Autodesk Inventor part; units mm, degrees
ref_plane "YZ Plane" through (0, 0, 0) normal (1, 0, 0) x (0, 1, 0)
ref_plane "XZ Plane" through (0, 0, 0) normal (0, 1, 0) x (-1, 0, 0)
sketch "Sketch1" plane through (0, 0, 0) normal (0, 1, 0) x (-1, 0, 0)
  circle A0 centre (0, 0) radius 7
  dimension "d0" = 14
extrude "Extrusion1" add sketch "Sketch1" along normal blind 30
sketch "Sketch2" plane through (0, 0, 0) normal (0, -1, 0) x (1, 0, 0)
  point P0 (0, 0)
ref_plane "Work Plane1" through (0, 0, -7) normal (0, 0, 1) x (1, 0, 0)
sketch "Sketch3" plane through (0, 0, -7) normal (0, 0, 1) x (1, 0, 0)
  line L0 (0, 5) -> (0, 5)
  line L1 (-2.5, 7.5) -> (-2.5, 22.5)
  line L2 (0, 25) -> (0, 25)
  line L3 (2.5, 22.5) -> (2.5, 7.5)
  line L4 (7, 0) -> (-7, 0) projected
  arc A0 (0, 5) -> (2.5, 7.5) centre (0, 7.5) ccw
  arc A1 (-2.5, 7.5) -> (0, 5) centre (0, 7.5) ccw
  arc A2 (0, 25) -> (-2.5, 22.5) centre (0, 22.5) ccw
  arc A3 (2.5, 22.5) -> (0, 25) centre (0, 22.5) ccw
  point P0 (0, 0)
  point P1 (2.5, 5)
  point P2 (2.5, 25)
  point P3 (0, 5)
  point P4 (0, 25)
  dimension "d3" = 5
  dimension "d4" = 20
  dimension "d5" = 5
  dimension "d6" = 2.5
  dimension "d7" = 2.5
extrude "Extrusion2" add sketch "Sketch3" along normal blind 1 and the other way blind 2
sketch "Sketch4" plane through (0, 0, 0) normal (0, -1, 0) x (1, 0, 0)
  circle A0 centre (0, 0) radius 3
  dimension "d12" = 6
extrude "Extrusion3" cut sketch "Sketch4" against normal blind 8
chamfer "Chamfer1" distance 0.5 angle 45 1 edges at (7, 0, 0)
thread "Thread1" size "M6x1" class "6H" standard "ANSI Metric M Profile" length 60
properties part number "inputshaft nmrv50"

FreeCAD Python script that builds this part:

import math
import FreeCAD as App
import Part
import Sketcher
from FreeCAD import Vector
Q = App.Units.Quantity


def edges_at(feature, points):
    """Names of the edges that pass closest to the given points."""
    edges = feature.Shape.Edges
    near = lambda p: min(range(len(edges)), key=lambda i: edges[i].distToShape(Part.Vertex(*p))[0])
    return sorted({f"Edge{near(p) + 1}" for p in points})

doc = App.newDocument("Part")
body = doc.addObject("PartDesign::Body", "Body")

# Sketch on XZ plane
sketch1 = doc.addObject("Sketcher::SketchObject", "Sketch")
body.addObject(sketch1)
sketch1.AttachmentSupport = (doc.XZ_Plane, [""])
sketch1.MapMode = "FlatFace"
sketch1.addGeometry(Part.Circle(Vector(0, 0, 0), Vector(0, 0, 1), 7), False)
sketch1.addConstraint([
    Sketcher.Constraint("Coincident", 0, 3, -1, 1),
    Sketcher.Constraint("Diameter", 0, Q("14 mm")),
])
pad1 = doc.addObject("PartDesign::Pad", "Pad")
body.addObject(pad1)
pad1.Profile = sketch1
pad1.Length = 30
pad1.Reversed = True

# Sketch on XY plane
sketch2 = doc.addObject("Sketcher::SketchObject", "Sketch001")
body.addObject(sketch2)
sketch2.AttachmentSupport = (doc.XY_Plane, [""])
sketch2.MapMode = "FlatFace"
sketch2.AttachmentOffset = App.Placement(Vector(0, 0, -7), App.Rotation())
sketch2.addGeometry([
    Part.LineSegment(Vector(-2.5, 22.5, 0), Vector(-2.5, 7.5, 0)),
    Part.ArcOfCircle(Part.Circle(Vector(0, 7.5, 0), Vector(0, 0, 1), 2.5), math.radians(180), math.radians(360)),
    Part.LineSegment(Vector(2.5, 7.5, 0), Vector(2.5, 22.5, 0)),
    Part.ArcOfCircle(Part.Circle(Vector(0, 22.5, 0), Vector(0, 0, 1), 2.5), math.radians(0), math.radians(180)),
], False)
sketch2.addConstraint([
    Sketcher.Constraint("Tangent", 0, 2, 1, 1),
    Sketcher.Constraint("Tangent", 1, 2, 2, 1),
    Sketcher.Constraint("Tangent", 2, 2, 3, 1),
    Sketcher.Constraint("Tangent", 3, 2, 0, 1),
    Sketcher.Constraint("Vertical", 0),
    Sketcher.Constraint("Vertical", 2),
    Sketcher.Constraint("PointOnObject", 1, 3, -2),
    Sketcher.Constraint("Radius", 1, Q("2.5 mm")),
    Sketcher.Constraint("DistanceY", 0, 2, 0, 1, Q("15 mm")),
    Sketcher.Constraint("DistanceY", -1, 1, 1, 3, Q("7.5 mm")),
])
pad2 = doc.addObject("PartDesign::Pad", "Pad001")
body.addObject(pad2)
pad2.Profile = sketch2
pad2.Type = "TwoLengths"
pad2.Length = 1
pad2.Length2 = 2

# Sketch on XZ plane
sketch3 = doc.addObject("Sketcher::SketchObject", "Sketch002")
body.addObject(sketch3)
sketch3.AttachmentSupport = (doc.XZ_Plane, [""])
sketch3.MapMode = "FlatFace"
sketch3.addGeometry(Part.Circle(Vector(0, 0, 0), Vector(0, 0, 1), 3), False)
sketch3.addConstraint([
    Sketcher.Constraint("Coincident", 0, 3, -1, 1),
    Sketcher.Constraint("Diameter", 0, Q("6 mm")),
])
pocket1 = doc.addObject("PartDesign::Pocket", "Pocket")
body.addObject(pocket1)
pocket1.Profile = sketch3
pocket1.Length = 8
doc.recompute()

chamfer = doc.addObject("PartDesign::Chamfer", "Chamfer")
body.addObject(chamfer)
chamfer.Base = (pocket1, edges_at(pocket1, [(7, 0, 0)]))
chamfer.Size = 0.5

doc.recompute()
